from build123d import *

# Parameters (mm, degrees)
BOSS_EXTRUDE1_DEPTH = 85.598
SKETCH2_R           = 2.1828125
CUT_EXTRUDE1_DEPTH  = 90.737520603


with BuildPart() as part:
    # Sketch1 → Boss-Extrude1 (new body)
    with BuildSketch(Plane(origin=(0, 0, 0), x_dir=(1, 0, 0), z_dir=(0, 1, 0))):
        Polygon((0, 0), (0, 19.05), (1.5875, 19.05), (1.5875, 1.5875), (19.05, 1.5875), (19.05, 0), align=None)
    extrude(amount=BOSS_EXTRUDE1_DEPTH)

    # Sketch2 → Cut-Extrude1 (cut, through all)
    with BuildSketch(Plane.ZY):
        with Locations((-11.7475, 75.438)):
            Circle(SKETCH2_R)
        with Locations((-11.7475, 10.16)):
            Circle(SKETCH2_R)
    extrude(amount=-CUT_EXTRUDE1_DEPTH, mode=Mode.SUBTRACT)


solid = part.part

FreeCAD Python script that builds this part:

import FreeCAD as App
import Part
import Sketcher
from FreeCAD import Vector
Q = App.Units.Quantity

doc = App.newDocument("Part")
body = doc.addObject("PartDesign::Body", "Body")

# Sketch on XZ plane
sketch1 = body.newObject("Sketcher::SketchObject", "Sketch")
sketch1.AttachmentSupport = (doc.getObject("XZ_Plane"), [""])
sketch1.MapMode = "FlatFace"
sketch1.addGeometry([
    Part.LineSegment(Vector(0, -19.1, 0), Vector(0, 0, 0)),  # 0
    Part.LineSegment(Vector(0, 0, 0), Vector(19.1, 0, 0)),  # 1
    Part.LineSegment(Vector(19.1, 0, 0), Vector(19.1, -1.6, 0)),  # 2
    Part.LineSegment(Vector(19.1, -1.6, 0), Vector(1.6, -1.6, 0)),  # 3
    Part.LineSegment(Vector(1.6, -1.6, 0), Vector(1.6, -19.1, 0)),  # 4
    Part.LineSegment(Vector(1.6, -19.1, 0), Vector(0, -19.1, 0)),  # 5
], False)
sketch1.addConstraint([
    Sketcher.Constraint("Coincident", 0, 2, 1, 1),
    Sketcher.Constraint("Coincident", 1, 2, 2, 1),
    Sketcher.Constraint("Coincident", 2, 2, 3, 1),
    Sketcher.Constraint("Coincident", 3, 2, 4, 1),
    Sketcher.Constraint("Coincident", 4, 2, 5, 1),
    Sketcher.Constraint("Coincident", 5, 2, 0, 1),
    Sketcher.Constraint("Vertical", 0),
    Sketcher.Constraint("Horizontal", 1),
    Sketcher.Constraint("Vertical", 2),
    Sketcher.Constraint("Horizontal", 3),
    Sketcher.Constraint("Vertical", 4),
    Sketcher.Constraint("Horizontal", 5),
    Sketcher.Constraint("Coincident", 0, 2, -1, 1),
    Sketcher.Constraint("Equal", 1, 0),
    Sketcher.Constraint("Equal", 5, 2),
    Sketcher.Constraint("DistanceX", 1, 1, 1, 2, Q("0.75 in")),
    Sketcher.Constraint("DistanceX", 3, 2, 3, 1, Q("0.6875 in")),
])
pad1 = body.newObject("PartDesign::Pad", "Pad")
pad1.Profile = sketch1
pad1.Length = Q("3.37 in")
pad1.Reversed = True

# Sketch on YZ plane
sketch2 = body.newObject("Sketcher::SketchObject", "Sketch001")
sketch2.AttachmentSupport = (doc.getObject("YZ_Plane"), [""])
sketch2.MapMode = "FlatFace"
sketch2.addGeometry([
    Part.Circle(Vector(75.4, -11.7, 0), Vector(0, 0, 1), 2.2),
    Part.Circle(Vector(10.2, -11.7, 0), Vector(0, 0, 1), 2.2),
], False)
sketch2.addConstraint([
    Sketcher.Constraint("Equal", 0, 1),
    Sketcher.Constraint("Horizontal", 0, 3, 1, 3),
    Sketcher.Constraint("Diameter", 0, Q("0.171875 in")),
    Sketcher.Constraint("DistanceX", -1, 1, 1, 3, Q("0.4 in")),
    Sketcher.Constraint("DistanceX", -1, 1, 0, 3, Q("2.97 in")),
    Sketcher.Constraint("DistanceY", 0, 3, -1, 1, Q("0.4625 in")),
])
pocket1 = body.newObject("PartDesign::Pocket", "Pocket")
pocket1.Profile = sketch2
pocket1.Type = "ThroughAll"
pocket1.Reversed = True

doc.recompute()
